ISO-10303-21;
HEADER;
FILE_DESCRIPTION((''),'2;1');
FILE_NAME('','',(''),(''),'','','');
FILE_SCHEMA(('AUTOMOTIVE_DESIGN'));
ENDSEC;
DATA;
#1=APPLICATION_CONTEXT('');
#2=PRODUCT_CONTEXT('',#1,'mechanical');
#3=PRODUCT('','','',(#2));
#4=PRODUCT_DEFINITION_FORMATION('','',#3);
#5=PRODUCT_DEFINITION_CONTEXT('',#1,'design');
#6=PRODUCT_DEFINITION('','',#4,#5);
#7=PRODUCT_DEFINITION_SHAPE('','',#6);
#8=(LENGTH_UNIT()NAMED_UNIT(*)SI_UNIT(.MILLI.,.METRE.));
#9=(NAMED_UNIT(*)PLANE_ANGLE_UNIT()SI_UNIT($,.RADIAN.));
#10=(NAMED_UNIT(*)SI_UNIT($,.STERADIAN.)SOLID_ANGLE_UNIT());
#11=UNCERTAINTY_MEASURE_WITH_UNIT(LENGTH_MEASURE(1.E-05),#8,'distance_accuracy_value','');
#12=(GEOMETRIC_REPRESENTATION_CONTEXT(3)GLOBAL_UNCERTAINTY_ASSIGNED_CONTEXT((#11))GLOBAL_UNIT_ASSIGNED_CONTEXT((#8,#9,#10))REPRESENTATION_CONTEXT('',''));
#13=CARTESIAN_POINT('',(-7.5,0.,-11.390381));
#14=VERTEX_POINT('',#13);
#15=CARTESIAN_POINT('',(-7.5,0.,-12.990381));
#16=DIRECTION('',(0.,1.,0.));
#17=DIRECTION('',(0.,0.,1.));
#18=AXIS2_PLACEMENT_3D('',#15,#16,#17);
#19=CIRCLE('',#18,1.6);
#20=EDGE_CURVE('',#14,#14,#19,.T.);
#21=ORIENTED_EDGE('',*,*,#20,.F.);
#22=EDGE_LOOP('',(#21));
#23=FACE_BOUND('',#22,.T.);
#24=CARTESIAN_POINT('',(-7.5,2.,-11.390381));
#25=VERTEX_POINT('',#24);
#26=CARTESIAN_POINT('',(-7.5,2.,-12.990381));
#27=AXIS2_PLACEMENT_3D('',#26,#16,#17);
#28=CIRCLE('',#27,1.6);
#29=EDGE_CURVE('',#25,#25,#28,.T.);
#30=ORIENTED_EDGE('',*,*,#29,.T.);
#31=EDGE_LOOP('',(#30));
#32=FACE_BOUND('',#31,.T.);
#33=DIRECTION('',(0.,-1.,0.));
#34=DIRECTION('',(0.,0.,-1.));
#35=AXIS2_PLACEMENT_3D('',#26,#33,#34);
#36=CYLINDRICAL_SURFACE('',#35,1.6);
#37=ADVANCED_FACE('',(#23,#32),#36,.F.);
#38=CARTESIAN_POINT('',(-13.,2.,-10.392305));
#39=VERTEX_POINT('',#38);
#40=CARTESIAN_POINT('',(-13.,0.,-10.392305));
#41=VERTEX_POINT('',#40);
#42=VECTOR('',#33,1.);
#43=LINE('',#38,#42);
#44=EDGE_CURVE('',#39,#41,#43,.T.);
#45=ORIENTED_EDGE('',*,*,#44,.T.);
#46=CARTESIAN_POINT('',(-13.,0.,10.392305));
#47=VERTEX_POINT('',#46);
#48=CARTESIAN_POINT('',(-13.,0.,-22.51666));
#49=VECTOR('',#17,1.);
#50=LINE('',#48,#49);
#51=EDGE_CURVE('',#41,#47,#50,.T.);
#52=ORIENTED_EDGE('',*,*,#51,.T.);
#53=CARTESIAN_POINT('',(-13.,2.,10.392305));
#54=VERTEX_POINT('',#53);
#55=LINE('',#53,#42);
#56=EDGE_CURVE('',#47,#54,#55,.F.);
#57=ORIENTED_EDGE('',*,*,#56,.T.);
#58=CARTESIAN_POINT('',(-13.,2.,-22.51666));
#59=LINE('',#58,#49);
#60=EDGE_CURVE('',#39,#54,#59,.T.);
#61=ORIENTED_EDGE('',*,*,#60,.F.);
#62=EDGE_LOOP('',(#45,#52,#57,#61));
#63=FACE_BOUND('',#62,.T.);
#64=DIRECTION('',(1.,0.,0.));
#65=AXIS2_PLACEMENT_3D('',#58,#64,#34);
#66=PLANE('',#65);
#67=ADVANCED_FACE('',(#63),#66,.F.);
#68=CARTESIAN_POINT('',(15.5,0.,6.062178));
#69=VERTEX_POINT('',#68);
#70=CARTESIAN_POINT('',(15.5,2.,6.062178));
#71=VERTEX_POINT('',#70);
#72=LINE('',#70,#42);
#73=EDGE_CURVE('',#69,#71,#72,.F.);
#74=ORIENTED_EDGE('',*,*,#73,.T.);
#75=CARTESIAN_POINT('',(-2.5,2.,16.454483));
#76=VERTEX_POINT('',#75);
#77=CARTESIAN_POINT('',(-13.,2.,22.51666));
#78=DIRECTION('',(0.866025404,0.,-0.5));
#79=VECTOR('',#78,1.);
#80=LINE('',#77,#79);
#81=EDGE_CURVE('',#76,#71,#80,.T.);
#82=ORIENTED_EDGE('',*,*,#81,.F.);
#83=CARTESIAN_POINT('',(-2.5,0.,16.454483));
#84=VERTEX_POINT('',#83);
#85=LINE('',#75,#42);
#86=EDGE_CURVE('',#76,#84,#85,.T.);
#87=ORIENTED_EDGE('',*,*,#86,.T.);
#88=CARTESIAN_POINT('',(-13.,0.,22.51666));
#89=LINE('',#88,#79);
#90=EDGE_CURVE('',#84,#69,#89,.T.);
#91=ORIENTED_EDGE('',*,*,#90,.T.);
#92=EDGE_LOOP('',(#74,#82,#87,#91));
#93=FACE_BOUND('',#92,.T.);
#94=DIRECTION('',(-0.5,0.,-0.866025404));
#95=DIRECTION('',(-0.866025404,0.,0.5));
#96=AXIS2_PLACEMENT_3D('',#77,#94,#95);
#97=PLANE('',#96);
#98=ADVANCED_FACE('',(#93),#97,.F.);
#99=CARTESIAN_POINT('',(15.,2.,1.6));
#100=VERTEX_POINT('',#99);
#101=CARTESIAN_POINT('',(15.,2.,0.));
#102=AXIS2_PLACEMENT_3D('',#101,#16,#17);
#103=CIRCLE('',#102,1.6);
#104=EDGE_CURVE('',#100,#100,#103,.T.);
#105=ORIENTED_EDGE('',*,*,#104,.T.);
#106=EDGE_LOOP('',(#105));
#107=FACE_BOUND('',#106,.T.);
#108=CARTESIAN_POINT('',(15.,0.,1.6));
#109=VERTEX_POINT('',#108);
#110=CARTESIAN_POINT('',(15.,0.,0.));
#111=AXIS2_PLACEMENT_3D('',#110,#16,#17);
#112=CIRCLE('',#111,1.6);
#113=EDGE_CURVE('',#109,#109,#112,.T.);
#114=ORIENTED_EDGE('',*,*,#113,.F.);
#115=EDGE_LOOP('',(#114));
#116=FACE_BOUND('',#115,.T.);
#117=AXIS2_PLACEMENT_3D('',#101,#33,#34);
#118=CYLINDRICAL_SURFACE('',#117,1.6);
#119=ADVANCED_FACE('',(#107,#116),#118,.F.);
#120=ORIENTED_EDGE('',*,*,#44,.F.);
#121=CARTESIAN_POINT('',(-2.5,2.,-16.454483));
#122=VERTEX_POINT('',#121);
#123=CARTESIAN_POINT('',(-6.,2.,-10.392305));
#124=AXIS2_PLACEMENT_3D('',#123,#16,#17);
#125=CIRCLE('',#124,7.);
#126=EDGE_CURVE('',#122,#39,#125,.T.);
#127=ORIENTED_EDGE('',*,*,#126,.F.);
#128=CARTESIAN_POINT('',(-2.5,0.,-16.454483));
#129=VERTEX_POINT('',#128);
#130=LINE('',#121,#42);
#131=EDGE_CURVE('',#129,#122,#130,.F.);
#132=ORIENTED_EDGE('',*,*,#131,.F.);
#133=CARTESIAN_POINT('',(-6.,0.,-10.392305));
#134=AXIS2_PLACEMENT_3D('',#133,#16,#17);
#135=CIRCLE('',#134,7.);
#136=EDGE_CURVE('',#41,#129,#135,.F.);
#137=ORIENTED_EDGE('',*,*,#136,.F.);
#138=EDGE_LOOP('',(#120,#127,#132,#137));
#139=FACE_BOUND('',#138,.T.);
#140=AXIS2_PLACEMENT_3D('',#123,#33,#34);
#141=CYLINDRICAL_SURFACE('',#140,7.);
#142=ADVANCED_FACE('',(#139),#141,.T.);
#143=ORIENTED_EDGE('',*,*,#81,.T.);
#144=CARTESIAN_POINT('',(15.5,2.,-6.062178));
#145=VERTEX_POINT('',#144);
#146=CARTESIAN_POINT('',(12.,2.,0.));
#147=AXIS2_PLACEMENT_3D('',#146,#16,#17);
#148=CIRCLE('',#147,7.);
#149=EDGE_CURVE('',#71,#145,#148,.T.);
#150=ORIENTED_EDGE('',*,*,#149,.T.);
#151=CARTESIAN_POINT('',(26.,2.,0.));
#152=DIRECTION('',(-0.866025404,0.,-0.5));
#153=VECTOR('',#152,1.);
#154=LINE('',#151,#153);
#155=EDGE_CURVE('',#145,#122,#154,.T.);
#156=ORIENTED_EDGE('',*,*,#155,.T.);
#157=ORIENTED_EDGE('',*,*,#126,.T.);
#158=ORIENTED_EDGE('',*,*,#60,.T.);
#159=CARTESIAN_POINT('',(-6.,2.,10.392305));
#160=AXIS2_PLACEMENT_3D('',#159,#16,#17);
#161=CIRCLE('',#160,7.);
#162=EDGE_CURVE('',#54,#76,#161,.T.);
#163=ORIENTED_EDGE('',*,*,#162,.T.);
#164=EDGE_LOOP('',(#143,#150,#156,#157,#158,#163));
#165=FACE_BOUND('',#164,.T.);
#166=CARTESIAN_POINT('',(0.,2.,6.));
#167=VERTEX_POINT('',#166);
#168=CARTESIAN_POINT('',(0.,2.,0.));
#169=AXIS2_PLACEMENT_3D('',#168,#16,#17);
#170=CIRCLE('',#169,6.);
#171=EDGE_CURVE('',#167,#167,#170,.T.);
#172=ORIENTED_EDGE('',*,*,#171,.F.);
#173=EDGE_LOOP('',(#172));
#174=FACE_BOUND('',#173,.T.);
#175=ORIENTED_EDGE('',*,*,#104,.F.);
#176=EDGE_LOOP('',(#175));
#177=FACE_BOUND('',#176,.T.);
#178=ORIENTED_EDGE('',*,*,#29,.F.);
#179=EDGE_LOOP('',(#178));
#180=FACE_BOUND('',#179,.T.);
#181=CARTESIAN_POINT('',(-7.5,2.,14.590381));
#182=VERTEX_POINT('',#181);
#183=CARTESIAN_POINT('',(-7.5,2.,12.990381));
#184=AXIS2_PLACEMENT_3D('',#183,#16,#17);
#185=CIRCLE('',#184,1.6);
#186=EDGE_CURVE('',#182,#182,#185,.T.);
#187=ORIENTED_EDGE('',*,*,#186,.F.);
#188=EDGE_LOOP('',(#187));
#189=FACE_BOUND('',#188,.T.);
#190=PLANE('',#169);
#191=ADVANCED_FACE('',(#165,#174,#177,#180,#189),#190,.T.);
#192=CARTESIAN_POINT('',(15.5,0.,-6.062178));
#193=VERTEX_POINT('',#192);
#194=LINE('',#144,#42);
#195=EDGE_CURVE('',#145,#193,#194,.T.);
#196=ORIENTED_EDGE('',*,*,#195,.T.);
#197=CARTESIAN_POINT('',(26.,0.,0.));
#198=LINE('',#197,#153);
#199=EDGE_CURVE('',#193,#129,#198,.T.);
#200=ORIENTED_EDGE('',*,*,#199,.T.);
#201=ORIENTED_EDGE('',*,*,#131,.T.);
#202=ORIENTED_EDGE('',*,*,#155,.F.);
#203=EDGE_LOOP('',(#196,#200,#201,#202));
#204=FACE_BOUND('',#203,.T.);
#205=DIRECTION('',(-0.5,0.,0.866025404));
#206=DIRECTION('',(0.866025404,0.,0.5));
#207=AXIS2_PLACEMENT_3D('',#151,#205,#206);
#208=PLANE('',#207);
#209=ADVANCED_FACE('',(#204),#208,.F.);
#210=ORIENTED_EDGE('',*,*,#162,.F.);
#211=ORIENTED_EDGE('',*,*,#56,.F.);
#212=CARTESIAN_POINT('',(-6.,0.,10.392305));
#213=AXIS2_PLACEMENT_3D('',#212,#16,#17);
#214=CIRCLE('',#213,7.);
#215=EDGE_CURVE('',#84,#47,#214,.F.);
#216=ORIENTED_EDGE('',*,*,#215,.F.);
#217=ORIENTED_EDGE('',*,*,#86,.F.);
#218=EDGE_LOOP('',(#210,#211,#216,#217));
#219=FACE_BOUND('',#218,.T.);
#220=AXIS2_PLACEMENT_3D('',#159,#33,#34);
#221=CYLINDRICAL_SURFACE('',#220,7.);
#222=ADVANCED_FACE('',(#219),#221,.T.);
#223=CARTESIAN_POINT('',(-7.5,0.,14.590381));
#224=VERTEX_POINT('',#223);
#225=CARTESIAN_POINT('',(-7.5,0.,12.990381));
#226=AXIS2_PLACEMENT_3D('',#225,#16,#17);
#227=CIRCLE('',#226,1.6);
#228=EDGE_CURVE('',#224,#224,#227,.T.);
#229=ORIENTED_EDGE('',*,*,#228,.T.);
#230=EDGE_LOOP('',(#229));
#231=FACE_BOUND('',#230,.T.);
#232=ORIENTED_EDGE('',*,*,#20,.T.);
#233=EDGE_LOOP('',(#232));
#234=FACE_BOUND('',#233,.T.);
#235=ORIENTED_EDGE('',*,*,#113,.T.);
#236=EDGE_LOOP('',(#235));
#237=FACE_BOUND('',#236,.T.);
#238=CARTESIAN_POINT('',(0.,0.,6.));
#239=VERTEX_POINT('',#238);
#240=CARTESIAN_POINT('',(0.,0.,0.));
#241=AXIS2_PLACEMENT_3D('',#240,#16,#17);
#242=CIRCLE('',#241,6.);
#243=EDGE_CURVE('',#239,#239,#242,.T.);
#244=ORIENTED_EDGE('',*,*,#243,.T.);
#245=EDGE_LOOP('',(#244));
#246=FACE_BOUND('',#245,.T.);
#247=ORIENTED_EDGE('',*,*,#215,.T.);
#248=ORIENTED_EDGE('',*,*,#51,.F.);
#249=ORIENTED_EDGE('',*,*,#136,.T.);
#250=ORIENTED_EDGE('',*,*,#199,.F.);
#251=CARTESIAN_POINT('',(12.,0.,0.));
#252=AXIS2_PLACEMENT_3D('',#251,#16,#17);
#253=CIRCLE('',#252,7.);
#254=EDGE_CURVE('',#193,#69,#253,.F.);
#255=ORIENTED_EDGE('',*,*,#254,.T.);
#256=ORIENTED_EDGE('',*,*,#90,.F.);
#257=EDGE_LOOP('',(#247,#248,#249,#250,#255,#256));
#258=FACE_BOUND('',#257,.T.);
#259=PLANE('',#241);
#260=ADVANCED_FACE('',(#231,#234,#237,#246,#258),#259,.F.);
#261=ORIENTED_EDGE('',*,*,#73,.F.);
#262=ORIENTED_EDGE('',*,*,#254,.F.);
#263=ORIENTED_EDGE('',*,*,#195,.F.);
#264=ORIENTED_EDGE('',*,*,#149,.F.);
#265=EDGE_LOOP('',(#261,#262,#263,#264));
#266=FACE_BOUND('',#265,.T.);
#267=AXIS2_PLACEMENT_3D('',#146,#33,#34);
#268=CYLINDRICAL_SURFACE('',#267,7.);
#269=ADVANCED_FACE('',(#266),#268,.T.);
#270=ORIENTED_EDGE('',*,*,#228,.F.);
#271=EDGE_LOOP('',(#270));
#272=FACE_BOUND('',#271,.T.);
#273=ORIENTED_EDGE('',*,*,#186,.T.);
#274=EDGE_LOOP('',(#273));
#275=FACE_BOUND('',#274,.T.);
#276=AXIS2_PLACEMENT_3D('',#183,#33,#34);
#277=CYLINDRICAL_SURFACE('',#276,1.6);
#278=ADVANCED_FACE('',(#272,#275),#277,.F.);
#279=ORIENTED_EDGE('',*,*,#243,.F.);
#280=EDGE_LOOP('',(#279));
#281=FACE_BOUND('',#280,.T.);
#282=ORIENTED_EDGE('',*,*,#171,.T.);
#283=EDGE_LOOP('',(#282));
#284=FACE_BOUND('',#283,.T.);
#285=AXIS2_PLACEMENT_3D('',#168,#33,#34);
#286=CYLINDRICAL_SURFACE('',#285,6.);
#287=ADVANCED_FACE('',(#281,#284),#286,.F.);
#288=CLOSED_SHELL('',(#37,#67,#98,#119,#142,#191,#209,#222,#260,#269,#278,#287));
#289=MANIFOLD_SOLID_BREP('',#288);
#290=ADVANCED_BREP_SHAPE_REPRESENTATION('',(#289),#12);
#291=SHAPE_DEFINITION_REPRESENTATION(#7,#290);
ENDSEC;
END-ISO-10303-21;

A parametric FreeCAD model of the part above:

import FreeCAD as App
import Part
import Sketcher
from FreeCAD import Vector
Q = App.Units.Quantity


def edges_at(feature, points):
    """Names of the edges that pass closest to the given points."""
    edges = feature.Shape.Edges
    near = lambda p: min(range(len(edges)), key=lambda i: edges[i].distToShape(Part.Vertex(*p))[0])
    return sorted({f"Edge{near(p) + 1}" for p in points})

doc = App.newDocument("Part")
body = doc.addObject("PartDesign::Body", "Body")

sketch1 = body.newObject("Sketcher::SketchObject", "Sketch")
sketch1.AttachmentSupport = (doc.getObject("XZ_Plane"), [""])
sketch1.MapMode = "FlatFace"
sketch1.addGeometry([
    Part.LineSegment(Vector(26, 0, 0), Vector(-13, -22.5, 0)),
    Part.LineSegment(Vector(-13, -22.5, 0), Vector(-13, 22.5, 0)),
    Part.LineSegment(Vector(-13, 22.5, 0), Vector(26, 0, 0)),
    Part.Circle(Vector(-7.5, 13, 0), Vector(0, 0, 1), 1.6),
    Part.Circle(Vector(0, 0, 0), Vector(0, 0, 1), 6),
    Part.Circle(Vector(-7.5, -13, 0), Vector(0, 0, 1), 1.6),
    Part.Circle(Vector(15, 0, 0), Vector(0, 0, 1), 1.6),
], False)
sketch1.addConstraint([
    Sketcher.Constraint("Coincident", 0, 2, 1, 1),
    Sketcher.Constraint("Coincident", 1, 2, 2, 1),
    Sketcher.Constraint("Coincident", 2, 2, 0, 1),
    Sketcher.Constraint("Vertical", 1),
    Sketcher.Constraint("Coincident", 4, 3, -1, 1),
    Sketcher.Constraint("Equal", 3, 5),
    Sketcher.Constraint("Equal", 5, 6),
    Sketcher.Constraint("Symmetric", 3, 3, 5, 3, -1),
    Sketcher.Constraint("PointOnObject", 6, 3, -1),
    Sketcher.Constraint("PointOnObject", 2, 2, -1),
    Sketcher.Constraint("Equal", 0, 2),
    Sketcher.Constraint("Diameter", 4, Q("12 mm")),
    Sketcher.Constraint("Diameter", 3, Q("3.2 mm")),
    Sketcher.Constraint("Angle", 0, Q("-150 deg")),
    Sketcher.Constraint("DistanceX", -1, 1, 6, 3, Q("15 mm")),
    Sketcher.Constraint("DistanceX", 0, 2, -1, 1, Q("13 mm")),
    Sketcher.Constraint("DistanceX", -1, 1, 2, 2, Q("26 mm")),
    Sketcher.Constraint("DistanceX", 3, 3, -1, 1, Q("7.5 mm")),
    Sketcher.Constraint("DistanceY", -1, 1, 3, 3, Q("12.990381 mm")),
])
pad1 = body.newObject("PartDesign::Pad", "Pad")
pad1.Profile = sketch1
pad1.Length = 2
pad1.Reversed = True
doc.recompute()

fillet = body.newObject("PartDesign::Fillet", "Fillet")
fillet.Base = (pad1, edges_at(pad1, [(-13, 1, 22.517), (-13, 1, -22.517), (26, 1, 0)]))
fillet.Radius = 7

doc.recompute()
